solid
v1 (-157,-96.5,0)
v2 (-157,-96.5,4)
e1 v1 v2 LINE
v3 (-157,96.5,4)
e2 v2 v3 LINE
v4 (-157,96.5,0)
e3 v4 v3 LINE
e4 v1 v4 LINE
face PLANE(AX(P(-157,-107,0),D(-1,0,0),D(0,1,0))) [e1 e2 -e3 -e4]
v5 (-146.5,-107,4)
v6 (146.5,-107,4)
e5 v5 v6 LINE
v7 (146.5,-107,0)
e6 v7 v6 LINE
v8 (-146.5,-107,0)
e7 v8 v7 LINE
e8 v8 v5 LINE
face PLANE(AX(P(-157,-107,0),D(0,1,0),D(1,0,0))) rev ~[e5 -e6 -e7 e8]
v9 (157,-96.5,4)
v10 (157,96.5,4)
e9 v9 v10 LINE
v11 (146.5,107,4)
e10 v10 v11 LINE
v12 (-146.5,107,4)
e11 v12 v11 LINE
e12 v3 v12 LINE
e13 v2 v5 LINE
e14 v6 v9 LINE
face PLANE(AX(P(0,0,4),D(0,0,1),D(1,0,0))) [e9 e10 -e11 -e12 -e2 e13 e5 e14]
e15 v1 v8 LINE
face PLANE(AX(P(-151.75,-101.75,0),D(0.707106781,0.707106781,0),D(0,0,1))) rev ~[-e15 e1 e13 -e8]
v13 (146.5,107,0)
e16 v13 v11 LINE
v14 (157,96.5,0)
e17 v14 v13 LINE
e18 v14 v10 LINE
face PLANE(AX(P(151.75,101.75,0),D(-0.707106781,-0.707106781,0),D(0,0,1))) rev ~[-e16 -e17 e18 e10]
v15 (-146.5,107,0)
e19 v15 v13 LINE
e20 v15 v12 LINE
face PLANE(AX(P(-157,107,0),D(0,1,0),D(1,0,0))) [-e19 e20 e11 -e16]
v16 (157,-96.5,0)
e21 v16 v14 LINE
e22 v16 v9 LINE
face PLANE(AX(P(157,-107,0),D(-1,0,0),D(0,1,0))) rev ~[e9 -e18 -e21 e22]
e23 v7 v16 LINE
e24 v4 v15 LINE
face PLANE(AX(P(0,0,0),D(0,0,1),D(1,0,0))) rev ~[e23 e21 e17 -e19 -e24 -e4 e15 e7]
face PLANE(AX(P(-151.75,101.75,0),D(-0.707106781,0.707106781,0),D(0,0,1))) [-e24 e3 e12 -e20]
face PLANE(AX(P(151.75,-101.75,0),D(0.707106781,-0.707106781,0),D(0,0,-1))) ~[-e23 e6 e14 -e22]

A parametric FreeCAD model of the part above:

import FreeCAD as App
import Part
import Sketcher
from FreeCAD import Vector
Q = App.Units.Quantity


def edges_at(feature, points):
    """Names of the edges that pass closest to the given points."""
    edges = feature.Shape.Edges
    near = lambda p: min(range(len(edges)), key=lambda i: edges[i].distToShape(Part.Vertex(*p))[0])
    return sorted({f"Edge{near(p) + 1}" for p in points})

doc = App.newDocument("Part")
body = doc.addObject("PartDesign::Body", "Body")

# Sketch on XY plane
sketch1 = body.newObject("Sketcher::SketchObject", "Sketch")
sketch1.AttachmentSupport = (doc.getObject("XY_Plane"), [""])
sketch1.MapMode = "FlatFace"
sketch1.addGeometry(Part.LineSegment(Vector(-157, 107, 0), Vector(-157, -107, 0)), False)
sketch1.addGeometry(Part.LineSegment(Vector(-157, -107, 0), Vector(157, -107, 0)), False)
sketch1.addGeometry(Part.LineSegment(Vector(157, -107, 0), Vector(157, 107, 0)), False)
sketch1.addGeometry(Part.LineSegment(Vector(157, 107, 0), Vector(-157, 107, 0)), False)
sketch1.addConstraint(Sketcher.Constraint("Coincident", 0, 2, 1, 1))
sketch1.addConstraint(Sketcher.Constraint("Coincident", 1, 2, 2, 1))
sketch1.addConstraint(Sketcher.Constraint("Coincident", 2, 2, 3, 1))
sketch1.addConstraint(Sketcher.Constraint("Coincident", 3, 2, 0, 1))
sketch1.addConstraint(Sketcher.Constraint("Vertical", 0))
sketch1.addConstraint(Sketcher.Constraint("Horizontal", 1))
sketch1.addConstraint(Sketcher.Constraint("Vertical", 2))
sketch1.addConstraint(Sketcher.Constraint("Horizontal", 3))
sketch1.addConstraint(Sketcher.Constraint("Symmetric", 0, 2, 2, 2, -1, 1))
sketch1.addConstraint(Sketcher.Constraint("DistanceX", 1, 1, 1, 2, Q("314 mm")))
sketch1.addConstraint(Sketcher.Constraint("DistanceY", 0, 2, 0, 1, Q("214 mm")))
pad1 = body.newObject("PartDesign::Pad", "Pad")
pad1.Profile = sketch1
pad1.Length = 4
doc.recompute()

chamfer = body.newObject("PartDesign::Chamfer", "Chamfer")
chamfer.Base = (pad1, edges_at(pad1, [
    (-157, -107, 2),
    (157, -107, 2),
    (157, 107, 2),
    (-157, 107, 2),
]))
chamfer.Size = 10.5

doc.recompute()
